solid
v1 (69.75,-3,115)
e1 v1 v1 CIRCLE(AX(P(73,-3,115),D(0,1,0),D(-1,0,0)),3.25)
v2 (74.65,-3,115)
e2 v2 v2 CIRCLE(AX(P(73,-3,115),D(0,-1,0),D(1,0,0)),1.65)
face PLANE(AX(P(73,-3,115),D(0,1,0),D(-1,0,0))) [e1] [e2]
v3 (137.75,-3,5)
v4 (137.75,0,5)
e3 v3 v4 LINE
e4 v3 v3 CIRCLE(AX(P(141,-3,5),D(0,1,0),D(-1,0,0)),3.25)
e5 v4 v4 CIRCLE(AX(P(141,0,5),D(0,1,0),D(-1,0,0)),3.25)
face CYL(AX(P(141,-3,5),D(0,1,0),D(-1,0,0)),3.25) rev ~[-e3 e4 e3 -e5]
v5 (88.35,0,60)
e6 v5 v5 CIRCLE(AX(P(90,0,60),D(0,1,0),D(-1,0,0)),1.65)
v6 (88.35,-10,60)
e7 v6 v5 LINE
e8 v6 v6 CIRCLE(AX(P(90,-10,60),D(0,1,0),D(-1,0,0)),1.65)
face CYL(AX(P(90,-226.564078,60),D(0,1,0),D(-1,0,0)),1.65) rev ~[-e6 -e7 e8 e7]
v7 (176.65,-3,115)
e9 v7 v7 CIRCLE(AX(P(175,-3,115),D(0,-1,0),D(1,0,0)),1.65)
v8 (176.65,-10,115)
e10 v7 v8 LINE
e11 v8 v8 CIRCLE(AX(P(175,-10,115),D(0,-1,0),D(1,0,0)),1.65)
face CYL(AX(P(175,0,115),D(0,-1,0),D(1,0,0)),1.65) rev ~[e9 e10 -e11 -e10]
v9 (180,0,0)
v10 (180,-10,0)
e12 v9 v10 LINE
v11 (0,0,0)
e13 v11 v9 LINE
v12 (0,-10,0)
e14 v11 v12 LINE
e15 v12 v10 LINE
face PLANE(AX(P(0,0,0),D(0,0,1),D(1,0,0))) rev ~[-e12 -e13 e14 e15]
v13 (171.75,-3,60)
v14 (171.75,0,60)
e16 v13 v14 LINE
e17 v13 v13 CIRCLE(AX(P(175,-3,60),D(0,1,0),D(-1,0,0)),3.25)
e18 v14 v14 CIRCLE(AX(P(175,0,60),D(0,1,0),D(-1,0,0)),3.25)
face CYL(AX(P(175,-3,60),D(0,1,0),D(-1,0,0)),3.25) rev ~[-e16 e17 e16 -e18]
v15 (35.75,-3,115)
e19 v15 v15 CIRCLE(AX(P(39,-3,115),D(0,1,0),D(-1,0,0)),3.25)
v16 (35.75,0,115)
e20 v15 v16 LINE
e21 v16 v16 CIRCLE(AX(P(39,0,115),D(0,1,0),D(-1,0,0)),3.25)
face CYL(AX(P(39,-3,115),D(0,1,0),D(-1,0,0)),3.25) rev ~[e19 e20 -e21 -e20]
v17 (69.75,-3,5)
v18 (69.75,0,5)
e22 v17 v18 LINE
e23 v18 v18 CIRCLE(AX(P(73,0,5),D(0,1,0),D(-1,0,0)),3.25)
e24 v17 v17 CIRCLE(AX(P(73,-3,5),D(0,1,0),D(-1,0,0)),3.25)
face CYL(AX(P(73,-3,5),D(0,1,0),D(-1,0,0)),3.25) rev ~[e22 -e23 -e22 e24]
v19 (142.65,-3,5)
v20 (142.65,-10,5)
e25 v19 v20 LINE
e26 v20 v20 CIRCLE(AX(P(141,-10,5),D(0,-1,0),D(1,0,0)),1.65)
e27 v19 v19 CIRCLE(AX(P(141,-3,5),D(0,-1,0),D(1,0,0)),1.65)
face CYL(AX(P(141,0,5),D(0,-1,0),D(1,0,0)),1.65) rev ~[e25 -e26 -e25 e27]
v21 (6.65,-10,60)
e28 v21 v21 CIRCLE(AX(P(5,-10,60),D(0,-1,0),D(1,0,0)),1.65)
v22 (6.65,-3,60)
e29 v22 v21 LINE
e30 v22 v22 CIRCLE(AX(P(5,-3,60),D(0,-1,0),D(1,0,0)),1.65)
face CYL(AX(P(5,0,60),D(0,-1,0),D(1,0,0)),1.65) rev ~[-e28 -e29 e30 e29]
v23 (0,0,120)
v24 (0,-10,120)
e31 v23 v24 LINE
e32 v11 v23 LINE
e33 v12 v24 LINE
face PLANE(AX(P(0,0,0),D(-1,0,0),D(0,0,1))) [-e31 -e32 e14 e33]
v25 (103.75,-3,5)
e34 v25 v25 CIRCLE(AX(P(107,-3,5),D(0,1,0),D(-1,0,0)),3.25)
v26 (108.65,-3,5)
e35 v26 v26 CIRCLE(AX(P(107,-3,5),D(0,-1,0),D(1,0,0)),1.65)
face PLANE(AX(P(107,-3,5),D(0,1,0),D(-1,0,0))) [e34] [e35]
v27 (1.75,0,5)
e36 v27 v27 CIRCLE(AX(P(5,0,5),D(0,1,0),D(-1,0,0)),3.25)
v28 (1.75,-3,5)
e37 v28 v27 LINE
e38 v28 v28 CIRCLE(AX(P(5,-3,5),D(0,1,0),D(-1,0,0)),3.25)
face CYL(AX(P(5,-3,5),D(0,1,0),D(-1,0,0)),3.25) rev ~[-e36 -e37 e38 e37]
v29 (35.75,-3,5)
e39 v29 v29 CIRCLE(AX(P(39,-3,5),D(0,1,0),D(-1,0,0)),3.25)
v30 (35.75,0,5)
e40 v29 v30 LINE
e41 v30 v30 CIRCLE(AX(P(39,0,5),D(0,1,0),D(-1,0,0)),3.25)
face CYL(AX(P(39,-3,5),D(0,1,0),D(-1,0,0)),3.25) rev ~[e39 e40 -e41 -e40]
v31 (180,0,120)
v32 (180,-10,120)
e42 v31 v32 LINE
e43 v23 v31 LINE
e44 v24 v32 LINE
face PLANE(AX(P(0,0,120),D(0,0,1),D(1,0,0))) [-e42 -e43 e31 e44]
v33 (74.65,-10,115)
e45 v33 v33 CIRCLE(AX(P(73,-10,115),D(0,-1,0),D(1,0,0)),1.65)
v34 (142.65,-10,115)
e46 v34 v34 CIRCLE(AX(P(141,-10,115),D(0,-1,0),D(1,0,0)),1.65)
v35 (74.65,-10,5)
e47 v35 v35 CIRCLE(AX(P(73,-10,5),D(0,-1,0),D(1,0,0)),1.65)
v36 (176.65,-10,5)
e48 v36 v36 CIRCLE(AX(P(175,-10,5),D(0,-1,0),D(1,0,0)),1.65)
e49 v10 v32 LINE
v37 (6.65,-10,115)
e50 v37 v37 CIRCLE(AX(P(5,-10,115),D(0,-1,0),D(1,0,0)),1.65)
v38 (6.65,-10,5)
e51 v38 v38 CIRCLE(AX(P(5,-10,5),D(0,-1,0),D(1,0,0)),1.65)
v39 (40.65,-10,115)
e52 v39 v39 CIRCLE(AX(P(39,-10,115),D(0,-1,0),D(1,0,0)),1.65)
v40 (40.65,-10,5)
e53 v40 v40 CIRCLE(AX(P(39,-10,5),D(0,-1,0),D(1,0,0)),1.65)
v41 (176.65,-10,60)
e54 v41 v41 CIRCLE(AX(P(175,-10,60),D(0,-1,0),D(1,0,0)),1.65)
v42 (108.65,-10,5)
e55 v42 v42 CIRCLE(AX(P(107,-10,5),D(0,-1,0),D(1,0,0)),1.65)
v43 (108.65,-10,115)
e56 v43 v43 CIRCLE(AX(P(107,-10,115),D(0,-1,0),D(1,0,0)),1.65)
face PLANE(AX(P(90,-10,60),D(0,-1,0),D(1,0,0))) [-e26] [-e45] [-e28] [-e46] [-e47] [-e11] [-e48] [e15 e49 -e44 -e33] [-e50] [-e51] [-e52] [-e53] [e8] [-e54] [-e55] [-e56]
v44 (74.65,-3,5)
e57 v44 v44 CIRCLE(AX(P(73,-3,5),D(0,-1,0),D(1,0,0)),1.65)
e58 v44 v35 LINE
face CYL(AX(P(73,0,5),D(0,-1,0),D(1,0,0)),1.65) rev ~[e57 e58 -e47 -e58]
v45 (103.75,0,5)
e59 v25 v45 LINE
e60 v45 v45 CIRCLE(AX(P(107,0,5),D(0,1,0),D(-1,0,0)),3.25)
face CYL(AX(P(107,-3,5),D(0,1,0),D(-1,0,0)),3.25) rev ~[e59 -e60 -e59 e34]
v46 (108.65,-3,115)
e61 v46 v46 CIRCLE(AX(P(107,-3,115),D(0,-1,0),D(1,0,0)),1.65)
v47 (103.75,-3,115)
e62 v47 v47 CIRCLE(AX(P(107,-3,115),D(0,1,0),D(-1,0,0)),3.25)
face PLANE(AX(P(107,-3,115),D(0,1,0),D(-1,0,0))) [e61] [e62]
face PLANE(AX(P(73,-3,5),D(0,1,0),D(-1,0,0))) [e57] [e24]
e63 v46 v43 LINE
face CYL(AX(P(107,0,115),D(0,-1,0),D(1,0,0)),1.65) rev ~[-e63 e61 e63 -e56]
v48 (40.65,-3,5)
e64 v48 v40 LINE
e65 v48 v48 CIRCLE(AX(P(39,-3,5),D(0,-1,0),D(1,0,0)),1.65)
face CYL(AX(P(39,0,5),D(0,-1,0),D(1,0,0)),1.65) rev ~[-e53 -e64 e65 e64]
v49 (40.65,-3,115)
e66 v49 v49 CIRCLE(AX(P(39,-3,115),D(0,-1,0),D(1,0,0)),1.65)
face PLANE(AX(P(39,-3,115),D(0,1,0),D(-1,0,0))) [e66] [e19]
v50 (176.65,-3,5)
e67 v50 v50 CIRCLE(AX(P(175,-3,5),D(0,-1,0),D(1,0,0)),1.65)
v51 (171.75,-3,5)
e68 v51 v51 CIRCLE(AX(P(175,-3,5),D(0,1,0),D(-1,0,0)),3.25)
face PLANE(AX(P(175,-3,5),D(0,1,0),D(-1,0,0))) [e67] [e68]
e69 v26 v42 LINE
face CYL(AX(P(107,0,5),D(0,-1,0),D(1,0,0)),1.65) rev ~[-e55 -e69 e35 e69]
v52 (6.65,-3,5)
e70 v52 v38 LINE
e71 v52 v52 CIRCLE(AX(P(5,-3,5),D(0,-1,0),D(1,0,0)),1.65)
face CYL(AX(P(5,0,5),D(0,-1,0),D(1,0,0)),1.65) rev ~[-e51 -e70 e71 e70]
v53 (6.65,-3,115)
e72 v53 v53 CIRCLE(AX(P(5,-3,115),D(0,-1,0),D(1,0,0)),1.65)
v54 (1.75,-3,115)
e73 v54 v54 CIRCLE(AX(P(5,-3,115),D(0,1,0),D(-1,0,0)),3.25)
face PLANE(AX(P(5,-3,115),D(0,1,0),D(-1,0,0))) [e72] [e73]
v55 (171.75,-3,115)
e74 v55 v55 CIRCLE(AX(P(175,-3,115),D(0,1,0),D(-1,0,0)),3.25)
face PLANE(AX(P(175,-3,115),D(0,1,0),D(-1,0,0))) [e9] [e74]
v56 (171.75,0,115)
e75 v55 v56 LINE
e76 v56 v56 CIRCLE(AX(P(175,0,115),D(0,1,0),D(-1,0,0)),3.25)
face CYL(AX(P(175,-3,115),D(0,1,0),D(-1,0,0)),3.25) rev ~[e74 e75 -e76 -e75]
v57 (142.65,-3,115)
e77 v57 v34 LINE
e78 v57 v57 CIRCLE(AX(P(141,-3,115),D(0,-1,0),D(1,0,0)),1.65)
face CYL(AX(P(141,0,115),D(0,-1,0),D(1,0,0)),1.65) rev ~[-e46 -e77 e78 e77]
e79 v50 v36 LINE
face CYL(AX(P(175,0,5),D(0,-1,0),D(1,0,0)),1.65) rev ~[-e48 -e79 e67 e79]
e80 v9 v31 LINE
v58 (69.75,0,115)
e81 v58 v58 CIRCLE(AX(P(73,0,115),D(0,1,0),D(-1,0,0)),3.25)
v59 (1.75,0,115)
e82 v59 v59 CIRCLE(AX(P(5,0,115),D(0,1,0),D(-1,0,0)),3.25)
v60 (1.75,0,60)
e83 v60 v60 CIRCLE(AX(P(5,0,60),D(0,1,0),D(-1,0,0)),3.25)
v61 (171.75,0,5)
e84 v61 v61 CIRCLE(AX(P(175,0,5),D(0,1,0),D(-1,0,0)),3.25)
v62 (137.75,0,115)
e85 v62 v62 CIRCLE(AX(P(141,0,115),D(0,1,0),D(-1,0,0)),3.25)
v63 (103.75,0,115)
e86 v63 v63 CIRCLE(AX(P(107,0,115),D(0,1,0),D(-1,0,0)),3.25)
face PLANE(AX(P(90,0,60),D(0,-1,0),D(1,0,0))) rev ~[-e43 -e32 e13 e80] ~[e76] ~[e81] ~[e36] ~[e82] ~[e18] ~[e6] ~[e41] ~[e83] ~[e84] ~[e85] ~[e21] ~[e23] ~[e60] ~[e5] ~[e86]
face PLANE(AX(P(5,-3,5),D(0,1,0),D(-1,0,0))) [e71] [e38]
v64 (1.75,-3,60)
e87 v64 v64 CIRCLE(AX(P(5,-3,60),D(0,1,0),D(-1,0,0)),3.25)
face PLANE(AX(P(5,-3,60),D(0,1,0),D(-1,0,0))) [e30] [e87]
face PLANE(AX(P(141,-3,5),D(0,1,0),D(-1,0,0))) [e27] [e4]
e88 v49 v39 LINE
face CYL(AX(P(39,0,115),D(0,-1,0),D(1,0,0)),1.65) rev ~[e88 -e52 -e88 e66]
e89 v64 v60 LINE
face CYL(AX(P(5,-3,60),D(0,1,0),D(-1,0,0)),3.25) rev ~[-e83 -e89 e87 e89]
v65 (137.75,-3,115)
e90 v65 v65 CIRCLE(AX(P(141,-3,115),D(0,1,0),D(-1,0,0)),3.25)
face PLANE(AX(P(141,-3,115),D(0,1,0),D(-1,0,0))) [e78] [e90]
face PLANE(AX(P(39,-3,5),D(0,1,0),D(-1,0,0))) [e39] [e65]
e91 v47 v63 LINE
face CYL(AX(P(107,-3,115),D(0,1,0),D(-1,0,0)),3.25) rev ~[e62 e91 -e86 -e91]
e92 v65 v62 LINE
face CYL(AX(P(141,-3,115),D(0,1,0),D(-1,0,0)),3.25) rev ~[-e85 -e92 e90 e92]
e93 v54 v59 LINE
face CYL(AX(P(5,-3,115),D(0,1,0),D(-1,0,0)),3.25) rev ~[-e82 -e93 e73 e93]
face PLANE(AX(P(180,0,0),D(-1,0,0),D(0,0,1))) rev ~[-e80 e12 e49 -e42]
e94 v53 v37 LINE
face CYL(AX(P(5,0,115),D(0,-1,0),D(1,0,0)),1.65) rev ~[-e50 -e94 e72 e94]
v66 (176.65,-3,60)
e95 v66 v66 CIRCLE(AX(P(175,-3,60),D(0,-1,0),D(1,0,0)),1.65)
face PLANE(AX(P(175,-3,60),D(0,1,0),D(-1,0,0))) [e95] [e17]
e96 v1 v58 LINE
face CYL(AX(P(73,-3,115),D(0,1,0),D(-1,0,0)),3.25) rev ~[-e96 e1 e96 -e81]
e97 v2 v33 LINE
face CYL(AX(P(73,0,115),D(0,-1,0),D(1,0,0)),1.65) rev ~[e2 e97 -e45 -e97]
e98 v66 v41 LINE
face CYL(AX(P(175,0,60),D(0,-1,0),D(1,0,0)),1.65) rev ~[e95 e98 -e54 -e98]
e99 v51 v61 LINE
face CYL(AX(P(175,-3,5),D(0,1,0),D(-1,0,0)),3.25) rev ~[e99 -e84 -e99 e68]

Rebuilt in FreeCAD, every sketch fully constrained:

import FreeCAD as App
import Part
import Sketcher
Q = App.Units.Quantity


def add_polygon(sketch, points):
    """Adds a closed chain of lines whose ends are joined by coincident constraints."""
    first, n = sketch.GeometryCount, len(points)
    for a, b in zip(points, points[1:] + points[:1]):
        sketch.addGeometry(Part.LineSegment(App.Vector(*a, 0), App.Vector(*b, 0)), False)
    for i in range(n):
        sketch.addConstraint(Sketcher.Constraint("Coincident", first + i, 2, first + (i + 1) % n, 1))

doc = App.newDocument("Part")
params = doc.addObject("Spreadsheet::Sheet", "Params")
for row, (alias, value) in enumerate([
    ("sketch1_width", "180 mm"),
    ("sketch1_height", "120 mm"),
    ("pad1_length", "10 mm"),
    ("sketch2_diameter", "3.3 mm"),
    ("hole_diameter", "3.3 mm"),
    ("hole_cbore_diameter", "6.5 mm"),
    ("hole_cbore_depth", "3 mm"),
    ("sketch3_diameter", "3.3 mm"),
    ("hole2_diameter", "3.3 mm"),
], start=1):
    params.set(f"A{row}", alias)
    params.set(f"B{row}", "=" + value)
    params.setAlias(f"B{row}", alias)

body = doc.addObject("PartDesign::Body", "Body")

sketch1 = doc.addObject("Sketcher::SketchObject", "Sketch")
body.addObject(sketch1)
sketch1.AttachmentSupport = (doc.XZ_Plane, [""])
sketch1.MapMode = "FlatFace"
add_polygon(sketch1, [(0, 120), (0, 0), (180, 0), (180, 120)])
sketch1.addConstraint([
    Sketcher.Constraint("Vertical", 0),
    Sketcher.Constraint("Horizontal", 1),
    Sketcher.Constraint("Vertical", 2),
    Sketcher.Constraint("Horizontal", 3),
    Sketcher.Constraint("Coincident", 0, 2, -1, 1),
    Sketcher.Constraint("DistanceX", 1, 1, 1, 2, Q("180 mm")),
    Sketcher.Constraint("DistanceY", 0, 2, 0, 1, Q("120 mm")),
])
sketch1.setExpression("Constraints[9]", "Params.sketch1_width")
sketch1.setExpression("Constraints[10]", "Params.sketch1_height")
pad1 = doc.addObject("PartDesign::Pad", "Pad")
body.addObject(pad1)
pad1.Profile = sketch1
pad1.setExpression("Length", "Params.pad1_length")

sketch2 = doc.addObject("Sketcher::SketchObject", "Sketch001")
body.addObject(sketch2)
sketch2.AttachmentSupport = (doc.XZ_Plane, [""])
sketch2.MapMode = "FlatFace"
sketch2.addGeometry([
    Part.Circle(App.Vector(175, 115, 0), App.Vector(0, 0, 1), 1.6),
    Part.Circle(App.Vector(141, 115, 0), App.Vector(0, 0, 1), 1.6),
    Part.Circle(App.Vector(107, 115, 0), App.Vector(0, 0, 1), 1.6),
    Part.Circle(App.Vector(73, 115, 0), App.Vector(0, 0, 1), 1.6),
    Part.Circle(App.Vector(39, 115, 0), App.Vector(0, 0, 1), 1.6),
    Part.Circle(App.Vector(5, 115, 0), App.Vector(0, 0, 1), 1.6),
    Part.Circle(App.Vector(5, 60, 0), App.Vector(0, 0, 1), 1.6),
    Part.Circle(App.Vector(5, 5, 0), App.Vector(0, 0, 1), 1.6),
    Part.Circle(App.Vector(39, 5, 0), App.Vector(0, 0, 1), 1.6),
    Part.Circle(App.Vector(73, 5, 0), App.Vector(0, 0, 1), 1.6),
    Part.Circle(App.Vector(107, 5, 0), App.Vector(0, 0, 1), 1.6),
    Part.Circle(App.Vector(141, 5, 0), App.Vector(0, 0, 1), 1.6),
    Part.Circle(App.Vector(175, 60, 0), App.Vector(0, 0, 1), 1.6),
    Part.Circle(App.Vector(175, 5, 0), App.Vector(0, 0, 1), 1.6),
], False)
sketch2.addConstraint([
    Sketcher.Constraint("Equal", 0, 1),
    Sketcher.Constraint("Equal", 1, 2),
    Sketcher.Constraint("Equal", 2, 3),
    Sketcher.Constraint("Equal", 3, 4),
    Sketcher.Constraint("Equal", 4, 5),
    Sketcher.Constraint("Equal", 5, 6),
    Sketcher.Constraint("Equal", 6, 7),
    Sketcher.Constraint("Equal", 7, 8),
    Sketcher.Constraint("Equal", 8, 9),
    Sketcher.Constraint("Equal", 9, 10),
    Sketcher.Constraint("Equal", 10, 11),
    Sketcher.Constraint("Equal", 11, 12),
    Sketcher.Constraint("Equal", 12, 13),
    Sketcher.Constraint("Horizontal", 0, 3, 1, 3),
    Sketcher.Constraint("Horizontal", 1, 3, 2, 3),
    Sketcher.Constraint("Horizontal", 2, 3, 3, 3),
    Sketcher.Constraint("Horizontal", 3, 3, 4, 3),
    Sketcher.Constraint("Horizontal", 4, 3, 5, 3),
    Sketcher.Constraint("Horizontal", 7, 3, 8, 3),
    Sketcher.Constraint("Horizontal", 8, 3, 9, 3),
    Sketcher.Constraint("Horizontal", 9, 3, 10, 3),
    Sketcher.Constraint("Horizontal", 10, 3, 11, 3),
    Sketcher.Constraint("Horizontal", 6, 3, 12, 3),
    Sketcher.Constraint("Horizontal", 11, 3, 13, 3),
    Sketcher.Constraint("Vertical", 5, 3, 6, 3),
    Sketcher.Constraint("Vertical", 6, 3, 7, 3),
    Sketcher.Constraint("Vertical", 4, 3, 8, 3),
    Sketcher.Constraint("Vertical", 3, 3, 9, 3),
    Sketcher.Constraint("Vertical", 2, 3, 10, 3),
    Sketcher.Constraint("Vertical", 1, 3, 11, 3),
    Sketcher.Constraint("Vertical", 0, 3, 12, 3),
    Sketcher.Constraint("Vertical", 12, 3, 13, 3),
    Sketcher.Constraint("Diameter", 0, Q("3.3 mm")),
    Sketcher.Constraint("DistanceX", -1, 1, 0, 3, Q("175 mm")),
    Sketcher.Constraint("DistanceY", -1, 1, 0, 3, Q("115 mm")),
    Sketcher.Constraint("DistanceX", -1, 1, 1, 3, Q("141 mm")),
    Sketcher.Constraint("DistanceX", -1, 1, 2, 3, Q("107 mm")),
    Sketcher.Constraint("DistanceX", -1, 1, 3, 3, Q("73 mm")),
    Sketcher.Constraint("DistanceX", -1, 1, 4, 3, Q("39 mm")),
    Sketcher.Constraint("DistanceX", -1, 1, 5, 3, Q("5 mm")),
    Sketcher.Constraint("DistanceY", -1, 1, 6, 3, Q("60 mm")),
    Sketcher.Constraint("DistanceY", -1, 1, 7, 3, Q("5 mm")),
])
sketch2.setExpression("Constraints[32]", "Params.sketch2_diameter")
doc.recompute()
hole = doc.addObject("PartDesign::Hole", "Hole")
body.addObject(hole)
hole.Profile = sketch2
hole.ThreadType = "None"
hole.setExpression("Diameter", "Params.hole_diameter")
hole.DepthType = "ThroughAll"
hole.HoleCutType = "Counterbore"
hole.setExpression("HoleCutDiameter", "Params.hole_cbore_diameter")
hole.setExpression("HoleCutDepth", "Params.hole_cbore_depth")
hole.Reversed = True

sketch3 = doc.addObject("Sketcher::SketchObject", "Sketch002")
body.addObject(sketch3)
sketch3.AttachmentSupport = (doc.XZ_Plane, [""])
sketch3.MapMode = "FlatFace"
sketch3.AttachmentOffset = App.Placement(App.Vector(0, 0, 10), App.Rotation())
sketch3.addGeometry(Part.Circle(App.Vector(90, 60, 0), App.Vector(0, 0, 1), 1.6), False)
sketch3.addConstraint([
    Sketcher.Constraint("Diameter", 0, Q("3.3 mm")),
    Sketcher.Constraint("DistanceX", -1, 1, 0, 3, Q("90 mm")),
    Sketcher.Constraint("DistanceY", -1, 1, 0, 3, Q("60 mm")),
])
sketch3.setExpression("Constraints[0]", "Params.sketch3_diameter")
doc.recompute()
hole2 = doc.addObject("PartDesign::Hole", "Hole001")
body.addObject(hole2)
hole2.Profile = sketch3
hole2.ThreadType = "None"
hole2.setExpression("Diameter", "Params.hole2_diameter")
hole2.DepthType = "ThroughAll"

doc.recompute()
